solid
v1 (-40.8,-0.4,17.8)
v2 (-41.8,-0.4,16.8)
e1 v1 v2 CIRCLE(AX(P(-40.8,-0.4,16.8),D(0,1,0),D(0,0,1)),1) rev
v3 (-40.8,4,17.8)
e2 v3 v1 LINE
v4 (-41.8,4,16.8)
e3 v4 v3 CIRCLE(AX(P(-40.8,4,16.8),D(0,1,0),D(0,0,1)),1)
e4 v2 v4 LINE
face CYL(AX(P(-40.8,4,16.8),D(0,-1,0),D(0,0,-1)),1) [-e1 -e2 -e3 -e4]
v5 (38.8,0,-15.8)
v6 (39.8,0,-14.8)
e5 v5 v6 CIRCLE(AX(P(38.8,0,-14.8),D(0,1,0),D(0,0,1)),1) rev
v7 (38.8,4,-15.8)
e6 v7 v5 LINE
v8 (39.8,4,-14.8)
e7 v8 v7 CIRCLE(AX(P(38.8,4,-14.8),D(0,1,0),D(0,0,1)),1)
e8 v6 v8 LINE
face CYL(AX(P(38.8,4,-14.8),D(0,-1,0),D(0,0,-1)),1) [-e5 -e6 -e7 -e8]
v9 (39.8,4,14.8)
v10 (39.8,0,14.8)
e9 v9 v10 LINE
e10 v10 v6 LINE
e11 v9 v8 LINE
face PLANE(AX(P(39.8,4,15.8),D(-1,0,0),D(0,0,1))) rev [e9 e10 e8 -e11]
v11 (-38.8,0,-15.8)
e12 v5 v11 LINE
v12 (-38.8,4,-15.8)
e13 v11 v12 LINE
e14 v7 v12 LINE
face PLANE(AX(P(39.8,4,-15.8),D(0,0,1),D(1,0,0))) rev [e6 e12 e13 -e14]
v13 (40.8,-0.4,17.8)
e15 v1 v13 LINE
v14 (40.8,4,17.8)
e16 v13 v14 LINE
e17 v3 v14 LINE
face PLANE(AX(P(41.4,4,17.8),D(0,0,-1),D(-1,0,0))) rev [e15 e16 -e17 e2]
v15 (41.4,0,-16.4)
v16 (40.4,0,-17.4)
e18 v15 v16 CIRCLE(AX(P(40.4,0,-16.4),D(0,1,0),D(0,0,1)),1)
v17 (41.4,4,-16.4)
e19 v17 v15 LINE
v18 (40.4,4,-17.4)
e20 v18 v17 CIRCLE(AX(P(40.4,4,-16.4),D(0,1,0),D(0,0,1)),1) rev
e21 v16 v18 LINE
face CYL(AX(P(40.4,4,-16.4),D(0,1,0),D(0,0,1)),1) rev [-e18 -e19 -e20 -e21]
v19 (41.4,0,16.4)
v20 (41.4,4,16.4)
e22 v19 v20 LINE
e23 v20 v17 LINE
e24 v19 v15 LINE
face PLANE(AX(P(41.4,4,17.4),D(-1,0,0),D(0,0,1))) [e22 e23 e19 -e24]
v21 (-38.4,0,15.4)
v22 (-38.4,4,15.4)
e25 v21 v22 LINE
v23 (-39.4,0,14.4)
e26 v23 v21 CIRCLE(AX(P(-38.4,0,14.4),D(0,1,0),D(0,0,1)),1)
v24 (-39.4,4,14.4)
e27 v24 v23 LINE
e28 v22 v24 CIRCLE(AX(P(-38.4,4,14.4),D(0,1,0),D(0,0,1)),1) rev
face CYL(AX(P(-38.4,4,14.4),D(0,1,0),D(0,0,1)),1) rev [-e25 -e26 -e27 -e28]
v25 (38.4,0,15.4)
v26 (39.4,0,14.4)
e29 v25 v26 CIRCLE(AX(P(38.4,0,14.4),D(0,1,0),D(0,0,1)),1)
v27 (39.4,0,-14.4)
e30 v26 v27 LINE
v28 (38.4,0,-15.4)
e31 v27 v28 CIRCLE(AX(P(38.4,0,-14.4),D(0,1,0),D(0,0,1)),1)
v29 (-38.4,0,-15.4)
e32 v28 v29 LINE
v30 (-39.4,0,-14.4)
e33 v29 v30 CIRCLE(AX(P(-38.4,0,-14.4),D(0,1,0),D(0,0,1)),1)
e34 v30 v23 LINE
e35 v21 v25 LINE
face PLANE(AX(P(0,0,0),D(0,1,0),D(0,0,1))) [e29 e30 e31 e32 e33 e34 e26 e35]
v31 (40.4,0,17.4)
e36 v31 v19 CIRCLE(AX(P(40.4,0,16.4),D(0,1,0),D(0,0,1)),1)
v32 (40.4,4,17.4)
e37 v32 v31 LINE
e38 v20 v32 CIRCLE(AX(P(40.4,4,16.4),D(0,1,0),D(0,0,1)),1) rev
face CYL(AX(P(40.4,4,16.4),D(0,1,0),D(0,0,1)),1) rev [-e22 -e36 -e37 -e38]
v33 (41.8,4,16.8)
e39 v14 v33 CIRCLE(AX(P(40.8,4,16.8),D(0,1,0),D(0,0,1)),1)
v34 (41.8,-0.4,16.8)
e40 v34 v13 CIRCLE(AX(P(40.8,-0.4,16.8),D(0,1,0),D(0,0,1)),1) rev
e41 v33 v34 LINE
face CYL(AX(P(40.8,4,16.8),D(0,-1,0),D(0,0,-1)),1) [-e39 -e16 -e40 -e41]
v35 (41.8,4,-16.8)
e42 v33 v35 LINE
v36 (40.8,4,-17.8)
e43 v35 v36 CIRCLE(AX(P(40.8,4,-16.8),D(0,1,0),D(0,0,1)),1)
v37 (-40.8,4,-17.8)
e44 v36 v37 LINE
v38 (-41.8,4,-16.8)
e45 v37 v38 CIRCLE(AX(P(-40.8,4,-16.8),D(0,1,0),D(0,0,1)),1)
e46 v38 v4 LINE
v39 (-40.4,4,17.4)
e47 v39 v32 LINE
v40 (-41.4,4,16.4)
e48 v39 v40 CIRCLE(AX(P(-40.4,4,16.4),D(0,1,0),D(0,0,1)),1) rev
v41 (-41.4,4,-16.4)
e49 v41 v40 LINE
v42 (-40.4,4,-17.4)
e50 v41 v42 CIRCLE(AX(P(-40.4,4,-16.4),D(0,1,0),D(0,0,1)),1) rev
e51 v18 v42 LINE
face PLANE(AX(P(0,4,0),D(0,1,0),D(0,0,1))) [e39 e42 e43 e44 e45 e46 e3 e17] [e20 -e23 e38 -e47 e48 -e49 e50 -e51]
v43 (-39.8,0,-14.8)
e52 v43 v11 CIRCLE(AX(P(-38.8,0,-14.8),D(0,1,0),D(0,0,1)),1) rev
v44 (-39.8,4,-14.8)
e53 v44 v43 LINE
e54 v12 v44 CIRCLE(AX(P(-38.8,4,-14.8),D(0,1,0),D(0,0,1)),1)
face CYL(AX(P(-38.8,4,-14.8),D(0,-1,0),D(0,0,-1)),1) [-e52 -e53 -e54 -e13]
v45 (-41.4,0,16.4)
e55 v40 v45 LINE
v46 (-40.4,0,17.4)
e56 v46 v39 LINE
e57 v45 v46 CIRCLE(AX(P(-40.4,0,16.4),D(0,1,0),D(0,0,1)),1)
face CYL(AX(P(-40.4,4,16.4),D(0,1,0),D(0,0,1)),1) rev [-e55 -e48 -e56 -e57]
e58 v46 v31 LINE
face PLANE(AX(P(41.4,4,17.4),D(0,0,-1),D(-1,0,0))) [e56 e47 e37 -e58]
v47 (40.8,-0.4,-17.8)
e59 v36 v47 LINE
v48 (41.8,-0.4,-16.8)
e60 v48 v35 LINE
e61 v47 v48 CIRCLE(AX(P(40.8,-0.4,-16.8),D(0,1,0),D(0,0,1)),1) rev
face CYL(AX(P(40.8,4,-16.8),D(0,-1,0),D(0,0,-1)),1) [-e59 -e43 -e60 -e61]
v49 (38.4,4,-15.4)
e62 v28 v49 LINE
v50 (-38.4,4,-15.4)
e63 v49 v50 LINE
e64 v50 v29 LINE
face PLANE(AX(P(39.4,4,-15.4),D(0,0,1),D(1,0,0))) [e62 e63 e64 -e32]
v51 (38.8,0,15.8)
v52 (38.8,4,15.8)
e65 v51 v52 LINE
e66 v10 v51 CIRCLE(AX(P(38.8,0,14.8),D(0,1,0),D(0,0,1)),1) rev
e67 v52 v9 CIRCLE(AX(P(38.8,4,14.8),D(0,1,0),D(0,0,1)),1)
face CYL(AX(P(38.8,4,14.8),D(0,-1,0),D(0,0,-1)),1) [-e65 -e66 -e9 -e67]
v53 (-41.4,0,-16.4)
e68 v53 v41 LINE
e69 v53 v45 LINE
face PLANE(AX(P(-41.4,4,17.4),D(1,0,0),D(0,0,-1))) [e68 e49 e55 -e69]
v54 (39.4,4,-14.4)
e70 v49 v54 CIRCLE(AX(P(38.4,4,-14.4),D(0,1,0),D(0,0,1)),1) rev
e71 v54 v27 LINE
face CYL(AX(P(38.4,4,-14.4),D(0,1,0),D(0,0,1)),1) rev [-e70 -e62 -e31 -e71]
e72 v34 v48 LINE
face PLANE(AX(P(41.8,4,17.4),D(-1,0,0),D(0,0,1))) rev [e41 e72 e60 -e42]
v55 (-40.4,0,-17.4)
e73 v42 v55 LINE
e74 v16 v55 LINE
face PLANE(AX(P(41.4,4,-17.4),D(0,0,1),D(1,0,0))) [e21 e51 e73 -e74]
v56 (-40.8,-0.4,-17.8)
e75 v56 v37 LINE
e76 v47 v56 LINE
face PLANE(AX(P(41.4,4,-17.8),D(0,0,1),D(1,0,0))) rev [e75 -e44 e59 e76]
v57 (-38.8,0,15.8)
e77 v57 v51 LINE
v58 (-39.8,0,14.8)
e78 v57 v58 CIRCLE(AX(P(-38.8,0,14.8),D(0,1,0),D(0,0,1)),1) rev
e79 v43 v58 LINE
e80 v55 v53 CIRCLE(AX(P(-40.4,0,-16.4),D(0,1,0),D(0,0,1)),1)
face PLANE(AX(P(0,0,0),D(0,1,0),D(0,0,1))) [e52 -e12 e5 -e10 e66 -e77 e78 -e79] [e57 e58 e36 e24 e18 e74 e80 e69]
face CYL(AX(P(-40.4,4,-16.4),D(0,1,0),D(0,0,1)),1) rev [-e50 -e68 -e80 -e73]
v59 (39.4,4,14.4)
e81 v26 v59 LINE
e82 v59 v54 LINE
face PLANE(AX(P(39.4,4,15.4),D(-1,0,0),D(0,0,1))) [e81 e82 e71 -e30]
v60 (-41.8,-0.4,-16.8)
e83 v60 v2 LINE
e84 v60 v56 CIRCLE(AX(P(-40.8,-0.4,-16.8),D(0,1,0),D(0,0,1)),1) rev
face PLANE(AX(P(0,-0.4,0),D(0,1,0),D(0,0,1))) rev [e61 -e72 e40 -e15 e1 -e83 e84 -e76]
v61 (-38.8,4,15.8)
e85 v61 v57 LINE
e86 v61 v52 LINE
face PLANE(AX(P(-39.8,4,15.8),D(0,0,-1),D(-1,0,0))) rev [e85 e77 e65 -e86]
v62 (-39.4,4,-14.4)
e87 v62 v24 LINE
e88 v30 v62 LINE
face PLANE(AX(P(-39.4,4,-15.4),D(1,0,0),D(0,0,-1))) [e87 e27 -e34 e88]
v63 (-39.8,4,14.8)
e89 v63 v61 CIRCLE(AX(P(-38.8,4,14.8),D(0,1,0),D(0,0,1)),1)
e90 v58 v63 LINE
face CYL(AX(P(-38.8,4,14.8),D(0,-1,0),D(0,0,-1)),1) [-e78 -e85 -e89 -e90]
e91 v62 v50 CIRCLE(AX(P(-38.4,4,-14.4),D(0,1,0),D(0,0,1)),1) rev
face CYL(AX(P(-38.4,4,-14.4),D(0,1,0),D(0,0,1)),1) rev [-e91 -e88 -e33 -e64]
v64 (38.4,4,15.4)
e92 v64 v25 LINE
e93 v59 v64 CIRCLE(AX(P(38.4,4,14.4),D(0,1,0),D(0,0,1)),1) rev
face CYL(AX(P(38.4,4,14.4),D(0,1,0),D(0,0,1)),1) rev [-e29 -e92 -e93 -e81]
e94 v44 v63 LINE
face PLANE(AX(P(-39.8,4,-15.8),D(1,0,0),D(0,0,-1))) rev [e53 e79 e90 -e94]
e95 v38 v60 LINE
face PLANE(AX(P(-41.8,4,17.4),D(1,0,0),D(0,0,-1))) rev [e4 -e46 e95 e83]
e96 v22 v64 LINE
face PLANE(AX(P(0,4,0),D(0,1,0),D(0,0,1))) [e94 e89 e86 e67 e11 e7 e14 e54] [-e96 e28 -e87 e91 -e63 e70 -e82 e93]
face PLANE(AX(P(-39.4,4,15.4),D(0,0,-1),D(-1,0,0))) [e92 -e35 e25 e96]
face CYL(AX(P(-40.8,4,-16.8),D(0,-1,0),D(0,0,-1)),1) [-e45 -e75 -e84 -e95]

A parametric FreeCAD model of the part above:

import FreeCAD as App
import Part
import Sketcher
from FreeCAD import Vector


def edges_at(feature, points):
    """Names of the edges that pass closest to the given points."""
    edges = feature.Shape.Edges
    near = lambda p: min(range(len(edges)), key=lambda i: edges[i].distToShape(Part.Vertex(*p))[0])
    return sorted({f"Edge{near(p) + 1}" for p in points})


def faces_at(feature, points):
    """Names of the faces that lie closest to the given points."""
    faces = feature.Shape.Faces
    near = lambda p: min(range(len(faces)), key=lambda i: faces[i].distToShape(Part.Vertex(*p))[0])
    return sorted({f"Face{near(p) + 1}" for p in points})


def add_polygon(sketch, points):
    """Adds a closed chain of lines whose ends are joined by coincident constraints."""
    first, n = sketch.GeometryCount, len(points)
    for a, b in zip(points, points[1:] + points[:1]):
        sketch.addGeometry(Part.LineSegment(App.Vector(*a, 0), App.Vector(*b, 0)), False)
    for i in range(n):
        sketch.addConstraint(Sketcher.Constraint("Coincident", first + i, 2, first + (i + 1) % n, 1))

doc = App.newDocument("Part")
body = doc.addObject("PartDesign::Body", "Body")

# Sketch on XZ plane
sketch1 = body.newObject("Sketcher::SketchObject", "Sketch")
sketch1.AttachmentSupport = (doc.getObject("XZ_Plane"), [""])
sketch1.MapMode = "FlatFace"
add_polygon(sketch1, [(-41.4, -17.4), (-41.4, 17.4), (41.4, 17.4), (41.4, -17.4)])  # lines 0-3
sketch1.addConstraint([
    Sketcher.Constraint("Vertical", 0),
    Sketcher.Constraint("Horizontal", 1),
    Sketcher.Constraint("Vertical", 2),
    Sketcher.Constraint("Horizontal", 3),
    Sketcher.Constraint("Symmetric", 0, 2, 2, 2, -1, 1),
    Sketcher.Constraint("DistanceX", 1, 1, 1, 2, 82.8),
    Sketcher.Constraint("DistanceY", 0, 1, 0, 2, 34.8),
])
pad1 = body.newObject("PartDesign::Pad", "Pad")
pad1.Profile = sketch1
pad1.Length = 4
pad1.Reversed = True
doc.recompute()

thickness = body.newObject("PartDesign::Thickness", "Thickness")
thickness.Base = (pad1, faces_at(pad1, [(0, 4, 0)]))
thickness.Value = 0.4
thickness.Reversed = False
thickness.Join = "Intersection"

# Sketch on XZ plane
sketch2 = body.newObject("Sketcher::SketchObject", "Sketch001")
sketch2.AttachmentSupport = (doc.getObject("XZ_Plane"), [""])
sketch2.MapMode = "FlatFace"
add_polygon(sketch2, [(-39.8, -15.8), (-39.8, 15.8), (39.8, 15.8), (39.8, -15.8)])  # lines 0-3
add_polygon(sketch2, [(39.4, 15.4), (-39.4, 15.4), (-39.4, -15.4), (39.4, -15.4)])  # lines 4-7
sketch2.addConstraint([
    Sketcher.Constraint("Vertical", 0),
    Sketcher.Constraint("Horizontal", 1),
    Sketcher.Constraint("Vertical", 2),
    Sketcher.Constraint("Horizontal", 3),
    Sketcher.Constraint("Horizontal", 4),
    Sketcher.Constraint("Vertical", 5),
    Sketcher.Constraint("Horizontal", 6),
    Sketcher.Constraint("Vertical", 7),
    Sketcher.Constraint("Symmetric", 0, 2, 2, 2, -1, 1),
    Sketcher.Constraint("Symmetric", 4, 2, 6, 2, -1, 1),
    Sketcher.Constraint("DistanceX", 1, 1, 1, 2, 79.6),
    Sketcher.Constraint("DistanceX", 4, 2, 4, 1, 78.8),
    Sketcher.Constraint("DistanceY", 0, 1, 0, 2, 31.6),
    Sketcher.Constraint("DistanceY", 5, 2, 5, 1, 30.8),
])
pad2 = body.newObject("PartDesign::Pad", "Pad001")
pad2.Profile = sketch2
pad2.Length = 4
pad2.Reversed = True
doc.recompute()

fillet = body.newObject("PartDesign::Fillet", "Fillet")
fillet.Base = (pad2, edges_at(pad2, [
    (-41.4, 2, -17.4),
    (-41.4, 2, 17.4),
    (41.4, 2, 17.4),
    (41.4, 2, -17.4),
    (39.8, 2, -15.8),
    (-39.8, 2, -15.8),
    (-39.8, 2, 15.8),
    (39.8, 2, 15.8),
    (-39.4, 2, -15.4),
    (-39.4, 2, 15.4),
    (39.4, 2, 15.4),
    (39.4, 2, -15.4),
    (-41.8, 1.8, -17.8),
    (41.8, 1.8, -17.8),
    (41.8, 1.8, 17.8),
    (-41.8, 1.8, 17.8),
]))
fillet.Radius = 1

doc.recompute()
